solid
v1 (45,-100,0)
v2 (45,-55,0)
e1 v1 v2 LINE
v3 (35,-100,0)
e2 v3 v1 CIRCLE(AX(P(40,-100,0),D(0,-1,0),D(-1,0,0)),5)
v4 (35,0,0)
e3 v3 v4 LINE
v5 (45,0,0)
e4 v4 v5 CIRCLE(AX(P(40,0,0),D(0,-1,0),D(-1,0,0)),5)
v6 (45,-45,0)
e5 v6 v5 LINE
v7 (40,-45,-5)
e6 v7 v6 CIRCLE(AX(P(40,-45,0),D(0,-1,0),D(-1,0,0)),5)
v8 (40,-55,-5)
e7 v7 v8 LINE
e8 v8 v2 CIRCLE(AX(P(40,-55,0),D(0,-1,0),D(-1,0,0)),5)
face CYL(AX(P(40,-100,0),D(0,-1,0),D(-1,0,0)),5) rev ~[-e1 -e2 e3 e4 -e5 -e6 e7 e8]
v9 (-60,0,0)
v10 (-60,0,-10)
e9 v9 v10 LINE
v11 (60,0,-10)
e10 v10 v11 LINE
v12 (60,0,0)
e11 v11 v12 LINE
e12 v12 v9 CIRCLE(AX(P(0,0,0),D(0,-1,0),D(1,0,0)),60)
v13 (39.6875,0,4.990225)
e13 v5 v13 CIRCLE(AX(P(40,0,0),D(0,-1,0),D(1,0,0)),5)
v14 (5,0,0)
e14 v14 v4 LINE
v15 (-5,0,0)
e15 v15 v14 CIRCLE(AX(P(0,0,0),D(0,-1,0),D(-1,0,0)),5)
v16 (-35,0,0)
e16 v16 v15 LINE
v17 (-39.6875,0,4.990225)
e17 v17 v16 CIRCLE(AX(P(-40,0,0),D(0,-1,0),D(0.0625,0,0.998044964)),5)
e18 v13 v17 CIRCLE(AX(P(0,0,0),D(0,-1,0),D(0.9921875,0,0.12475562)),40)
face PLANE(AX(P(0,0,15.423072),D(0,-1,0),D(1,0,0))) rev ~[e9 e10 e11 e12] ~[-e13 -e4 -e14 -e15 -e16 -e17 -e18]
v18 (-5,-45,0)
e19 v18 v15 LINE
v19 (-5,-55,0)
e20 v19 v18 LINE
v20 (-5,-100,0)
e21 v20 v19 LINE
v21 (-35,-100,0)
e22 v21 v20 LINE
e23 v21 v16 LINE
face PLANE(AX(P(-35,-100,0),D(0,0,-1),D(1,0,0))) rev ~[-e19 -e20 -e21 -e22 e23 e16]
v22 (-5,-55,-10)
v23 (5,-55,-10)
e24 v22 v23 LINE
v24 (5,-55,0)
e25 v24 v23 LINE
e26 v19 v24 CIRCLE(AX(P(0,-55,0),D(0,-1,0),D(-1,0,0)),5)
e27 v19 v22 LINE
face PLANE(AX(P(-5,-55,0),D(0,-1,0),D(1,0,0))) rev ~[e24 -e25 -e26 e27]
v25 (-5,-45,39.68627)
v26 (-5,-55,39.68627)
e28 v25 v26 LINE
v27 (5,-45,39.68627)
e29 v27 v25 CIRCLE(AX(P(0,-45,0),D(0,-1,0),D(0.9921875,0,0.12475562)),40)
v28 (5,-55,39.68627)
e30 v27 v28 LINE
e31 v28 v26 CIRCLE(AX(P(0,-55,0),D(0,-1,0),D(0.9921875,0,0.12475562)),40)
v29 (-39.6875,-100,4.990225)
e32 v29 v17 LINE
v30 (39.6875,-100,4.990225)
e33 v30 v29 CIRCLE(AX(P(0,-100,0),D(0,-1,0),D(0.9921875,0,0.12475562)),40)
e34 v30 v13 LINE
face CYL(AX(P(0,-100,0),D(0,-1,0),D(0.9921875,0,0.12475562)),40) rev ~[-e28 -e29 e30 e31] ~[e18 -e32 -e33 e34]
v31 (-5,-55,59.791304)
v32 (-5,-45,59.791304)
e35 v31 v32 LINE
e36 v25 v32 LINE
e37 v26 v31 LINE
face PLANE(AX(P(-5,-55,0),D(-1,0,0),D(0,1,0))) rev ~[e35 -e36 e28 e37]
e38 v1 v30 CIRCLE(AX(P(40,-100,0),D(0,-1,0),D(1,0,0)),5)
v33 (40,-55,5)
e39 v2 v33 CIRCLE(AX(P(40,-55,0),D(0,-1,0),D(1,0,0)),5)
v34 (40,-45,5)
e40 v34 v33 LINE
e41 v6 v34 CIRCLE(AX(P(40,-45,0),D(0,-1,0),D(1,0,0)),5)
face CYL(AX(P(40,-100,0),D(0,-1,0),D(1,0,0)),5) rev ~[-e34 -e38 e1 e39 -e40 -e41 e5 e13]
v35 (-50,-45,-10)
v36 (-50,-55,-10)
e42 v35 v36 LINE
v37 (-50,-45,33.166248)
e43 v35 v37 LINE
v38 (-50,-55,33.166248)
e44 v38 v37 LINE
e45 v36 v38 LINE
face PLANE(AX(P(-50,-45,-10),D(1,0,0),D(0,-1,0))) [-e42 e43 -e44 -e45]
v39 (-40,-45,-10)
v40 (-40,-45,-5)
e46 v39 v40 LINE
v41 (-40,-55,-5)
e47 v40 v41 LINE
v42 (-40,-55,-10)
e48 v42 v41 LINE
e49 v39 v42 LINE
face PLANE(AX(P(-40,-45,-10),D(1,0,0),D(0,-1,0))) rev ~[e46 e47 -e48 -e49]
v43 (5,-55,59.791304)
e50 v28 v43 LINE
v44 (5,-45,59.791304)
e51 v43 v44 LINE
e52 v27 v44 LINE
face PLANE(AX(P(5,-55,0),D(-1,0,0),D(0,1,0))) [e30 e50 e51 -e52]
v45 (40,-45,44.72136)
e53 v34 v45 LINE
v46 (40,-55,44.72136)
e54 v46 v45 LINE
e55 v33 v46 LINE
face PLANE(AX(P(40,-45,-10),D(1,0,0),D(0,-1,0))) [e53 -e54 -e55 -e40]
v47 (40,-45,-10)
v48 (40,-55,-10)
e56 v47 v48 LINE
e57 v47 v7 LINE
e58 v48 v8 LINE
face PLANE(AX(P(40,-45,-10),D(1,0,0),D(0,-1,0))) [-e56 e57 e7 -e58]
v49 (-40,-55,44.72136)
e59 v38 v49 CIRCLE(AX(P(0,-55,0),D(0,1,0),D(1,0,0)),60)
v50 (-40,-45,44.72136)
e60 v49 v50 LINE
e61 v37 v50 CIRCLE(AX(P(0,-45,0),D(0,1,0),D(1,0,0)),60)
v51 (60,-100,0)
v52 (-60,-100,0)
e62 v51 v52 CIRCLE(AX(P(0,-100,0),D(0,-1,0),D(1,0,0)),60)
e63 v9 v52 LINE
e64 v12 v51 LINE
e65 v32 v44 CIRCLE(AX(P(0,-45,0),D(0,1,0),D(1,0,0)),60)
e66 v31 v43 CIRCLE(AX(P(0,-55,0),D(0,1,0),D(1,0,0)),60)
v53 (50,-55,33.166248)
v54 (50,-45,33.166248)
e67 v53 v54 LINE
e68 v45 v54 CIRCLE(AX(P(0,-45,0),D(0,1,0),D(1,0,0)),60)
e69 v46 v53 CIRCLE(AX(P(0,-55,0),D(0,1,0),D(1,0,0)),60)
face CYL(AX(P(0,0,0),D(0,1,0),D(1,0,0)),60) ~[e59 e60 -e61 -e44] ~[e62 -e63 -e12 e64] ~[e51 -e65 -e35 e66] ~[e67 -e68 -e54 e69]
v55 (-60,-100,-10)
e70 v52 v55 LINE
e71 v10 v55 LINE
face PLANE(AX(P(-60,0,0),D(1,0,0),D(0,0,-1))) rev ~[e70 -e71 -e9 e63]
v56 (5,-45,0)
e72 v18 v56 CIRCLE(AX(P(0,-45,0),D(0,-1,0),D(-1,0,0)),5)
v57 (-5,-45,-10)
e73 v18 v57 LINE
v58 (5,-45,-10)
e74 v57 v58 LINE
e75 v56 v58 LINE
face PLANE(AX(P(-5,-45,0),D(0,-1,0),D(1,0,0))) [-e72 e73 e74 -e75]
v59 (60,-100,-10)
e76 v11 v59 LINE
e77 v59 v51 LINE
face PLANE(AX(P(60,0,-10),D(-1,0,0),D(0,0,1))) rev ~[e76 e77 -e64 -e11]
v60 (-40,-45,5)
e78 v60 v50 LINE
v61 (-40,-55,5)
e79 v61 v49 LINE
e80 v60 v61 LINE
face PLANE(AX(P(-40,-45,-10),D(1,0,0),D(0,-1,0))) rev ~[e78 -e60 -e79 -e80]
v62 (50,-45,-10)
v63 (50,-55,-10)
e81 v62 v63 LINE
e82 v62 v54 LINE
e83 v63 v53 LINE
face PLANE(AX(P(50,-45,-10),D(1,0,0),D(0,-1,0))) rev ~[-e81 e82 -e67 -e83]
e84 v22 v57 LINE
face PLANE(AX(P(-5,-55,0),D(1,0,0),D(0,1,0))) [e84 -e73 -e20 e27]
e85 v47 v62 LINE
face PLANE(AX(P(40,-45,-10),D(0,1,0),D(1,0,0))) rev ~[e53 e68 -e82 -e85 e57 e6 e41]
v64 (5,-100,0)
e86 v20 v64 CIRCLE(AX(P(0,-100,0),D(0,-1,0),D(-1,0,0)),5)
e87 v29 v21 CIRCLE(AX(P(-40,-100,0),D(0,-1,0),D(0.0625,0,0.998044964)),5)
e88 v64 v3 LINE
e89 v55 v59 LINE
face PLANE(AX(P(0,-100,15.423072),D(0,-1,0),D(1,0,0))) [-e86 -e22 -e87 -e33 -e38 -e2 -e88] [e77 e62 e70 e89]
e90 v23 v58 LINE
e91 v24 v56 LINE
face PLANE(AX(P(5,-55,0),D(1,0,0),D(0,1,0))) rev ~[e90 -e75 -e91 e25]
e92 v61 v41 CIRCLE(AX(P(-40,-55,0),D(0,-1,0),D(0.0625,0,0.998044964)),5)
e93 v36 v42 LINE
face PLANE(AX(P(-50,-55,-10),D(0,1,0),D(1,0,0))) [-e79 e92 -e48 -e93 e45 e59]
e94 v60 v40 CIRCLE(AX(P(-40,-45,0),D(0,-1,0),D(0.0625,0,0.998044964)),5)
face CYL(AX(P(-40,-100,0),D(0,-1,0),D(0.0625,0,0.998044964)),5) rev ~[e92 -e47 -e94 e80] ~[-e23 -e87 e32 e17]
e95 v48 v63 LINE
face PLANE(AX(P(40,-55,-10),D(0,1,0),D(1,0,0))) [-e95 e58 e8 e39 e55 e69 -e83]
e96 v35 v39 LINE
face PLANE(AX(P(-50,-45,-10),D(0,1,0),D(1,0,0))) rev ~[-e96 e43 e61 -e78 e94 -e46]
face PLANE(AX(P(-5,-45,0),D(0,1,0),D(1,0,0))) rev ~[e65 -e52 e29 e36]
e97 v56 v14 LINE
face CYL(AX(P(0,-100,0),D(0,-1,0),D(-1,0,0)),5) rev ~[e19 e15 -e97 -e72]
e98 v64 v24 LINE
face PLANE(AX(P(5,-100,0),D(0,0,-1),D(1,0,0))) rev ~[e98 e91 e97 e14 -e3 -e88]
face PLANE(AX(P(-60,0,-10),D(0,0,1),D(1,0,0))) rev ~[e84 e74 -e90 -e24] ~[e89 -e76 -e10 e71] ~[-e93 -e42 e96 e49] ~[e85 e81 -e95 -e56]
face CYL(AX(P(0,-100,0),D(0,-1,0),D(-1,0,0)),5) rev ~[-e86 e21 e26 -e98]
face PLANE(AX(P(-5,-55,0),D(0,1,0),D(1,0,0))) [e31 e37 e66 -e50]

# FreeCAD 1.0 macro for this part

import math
import FreeCAD as App
import Part
import Sketcher
from FreeCAD import Vector
Q = App.Units.Quantity


def add_polygon(sketch, points):
    """Adds a closed chain of lines whose ends are joined by coincident constraints."""
    first, n = sketch.GeometryCount, len(points)
    for a, b in zip(points, points[1:] + points[:1]):
        sketch.addGeometry(Part.LineSegment(App.Vector(*a, 0), App.Vector(*b, 0)), False)
    for i in range(n):
        sketch.addConstraint(Sketcher.Constraint("Coincident", first + i, 2, first + (i + 1) % n, 1))

doc = App.newDocument("Part")
params = doc.addObject("Spreadsheet::Sheet", "Params")
for row, (alias, value) in enumerate([
    ("sketch1_radius", "60 mm"),
    ("sketch1_height", "10 mm"),
    ("pad1_length", "100 mm"),
    ("sketch2_radius", "5 mm"),
    ("sketch2_radius2", "40 mm"),
    ("sketch2_width", "30 mm"),
    ("sketch3_width", "10 mm"),
    ("sketch4_width", "10 mm"),
    ("sketch5_width", "10 mm"),
    ("sketch6_width", "10 mm"),
], start=1):
    params.set(f"A{row}", alias)
    params.set(f"B{row}", "=" + value)
    params.setAlias(f"B{row}", alias)

body = doc.addObject("PartDesign::Body", "Body")

# Sketch on XZ plane
sketch1 = body.newObject("Sketcher::SketchObject", "Sketch")
sketch1.AttachmentSupport = (doc.getObject("XZ_Plane"), [""])
sketch1.MapMode = "FlatFace"
sketch1.addGeometry([
    Part.LineSegment(Vector(60, -10, 0), Vector(60, 0, 0)),
    Part.ArcOfCircle(Part.Circle(Vector(0, 0, 0), Vector(0, 0, 1), 60), math.radians(0), math.radians(180)),
    Part.LineSegment(Vector(-60, 0, 0), Vector(-60, -10, 0)),
    Part.LineSegment(Vector(-60, -10, 0), Vector(60, -10, 0)),
], False)
sketch1.addConstraint([
    Sketcher.Constraint("Tangent", 0, 2, 1, 1),
    Sketcher.Constraint("Tangent", 1, 2, 2, 1),
    Sketcher.Constraint("Coincident", 2, 2, 3, 1),
    Sketcher.Constraint("Coincident", 3, 2, 0, 1),
    Sketcher.Constraint("Vertical", 0),
    Sketcher.Constraint("Vertical", 2),
    Sketcher.Constraint("Horizontal", 3),
    Sketcher.Constraint("Coincident", 1, 3, -1, 1),
    Sketcher.Constraint("Radius", 1, Q("60 mm")),
    Sketcher.Constraint("DistanceY", 0, 1, 0, 2, Q("10 mm")),
])
sketch1.setExpression("Constraints[8]", "Params.sketch1_radius")
sketch1.setExpression("Constraints[9]", "Params.sketch1_height")
pad1 = body.newObject("PartDesign::Pad", "Pad")
pad1.Profile = sketch1
pad1.setExpression("Length", "Params.pad1_length")

# Sketch on XZ plane
sketch2 = body.newObject("Sketcher::SketchObject", "Sketch001")
sketch2.AttachmentSupport = (doc.getObject("XZ_Plane"), [""])
sketch2.MapMode = "FlatFace"
sketch2.AttachmentOffset = App.Placement(Vector(0, 0, 100), App.Rotation())
sketch2.addGeometry([
    Part.ArcOfCircle(Part.Circle(Vector(40, 0, 0), Vector(0, 0, 1), 5), math.radians(180), math.radians(360)),  # 0
    Part.ArcOfCircle(Part.Circle(Vector(40, 0, 0), Vector(0, 0, 1), 5), math.radians(0), math.radians(94)),  # 1
    Part.ArcOfCircle(Part.Circle(Vector(0, 0, 0), Vector(0, 0, 1), 40), math.radians(7), math.radians(173)),  # 2
    Part.ArcOfCircle(Part.Circle(Vector(-40, 0, 0), Vector(0, 0, 1), 5), math.radians(86), math.radians(360)),  # 3
    Part.LineSegment(Vector(-35, 0, 0), Vector(-5, 0, 0)),  # 4
    Part.ArcOfCircle(Part.Circle(Vector(0, 0, 0), Vector(0, 0, 1), 5), math.radians(180), math.radians(360)),  # 5
    Part.LineSegment(Vector(5, 0, 0), Vector(35, 0, 0)),  # 6
], False)
sketch2.addConstraint([
    Sketcher.Constraint("Tangent", 0, 2, 1, 1),
    Sketcher.Constraint("Coincident", 1, 2, 2, 1),
    Sketcher.Constraint("Coincident", 2, 2, 3, 1),
    Sketcher.Constraint("Coincident", 3, 2, 4, 1),
    Sketcher.Constraint("Coincident", 4, 2, 5, 1),
    Sketcher.Constraint("Coincident", 5, 2, 6, 1),
    Sketcher.Constraint("Coincident", 6, 2, 0, 1),
    Sketcher.Constraint("Horizontal", 4),
    Sketcher.Constraint("Horizontal", 6),
    Sketcher.Constraint("Coincident", 2, 3, -1, 1),
    Sketcher.Constraint("Coincident", 5, 3, -1, 1),
    Sketcher.Constraint("Equal", 0, 1),
    Sketcher.Constraint("Equal", 1, 3),
    Sketcher.Constraint("Equal", 3, 5),
    Sketcher.Constraint("Symmetric", 0, 3, 3, 3, -1, 1),
    Sketcher.Constraint("PointOnObject", 0, 3, -1),
    Sketcher.Constraint("PointOnObject", 0, 2, -1),
    Sketcher.Constraint("PointOnObject", 3, 2, -1),
    Sketcher.Constraint("PointOnObject", 5, 2, -1),
    Sketcher.Constraint("Radius", 0, Q("5 mm")),
    Sketcher.Constraint("Radius", 2, Q("40 mm")),
    Sketcher.Constraint("DistanceX", 4, 1, 4, 2, Q("30 mm")),
])
sketch2.setExpression("Constraints[19]", "Params.sketch2_radius")
sketch2.setExpression("Constraints[20]", "Params.sketch2_radius2")
sketch2.setExpression("Constraints[21]", "Params.sketch2_width")
pocket1 = body.newObject("PartDesign::Pocket", "Pocket")
pocket1.Profile = sketch2
pocket1.Type = "ThroughAll"

# Sketch on XY plane
sketch3 = body.newObject("Sketcher::SketchObject", "Sketch002")
sketch3.AttachmentSupport = (doc.getObject("XY_Plane"), [""])
sketch3.MapMode = "FlatFace"
add_polygon(sketch3, [(-5, -45), (-5, -55), (5, -55), (5, -45)])  # lines 0-3
sketch3.addConstraint([
    Sketcher.Constraint("Vertical", 0),
    Sketcher.Constraint("Horizontal", 1),
    Sketcher.Constraint("Vertical", 2),
    Sketcher.Constraint("Horizontal", 3),
    Sketcher.Constraint("Equal", 3, 0),
    Sketcher.Constraint("DistanceX", 1, 1, 1, 2, Q("10 mm")),
    Sketcher.Constraint("DistanceX", 0, 2, -1, 1, Q("5 mm")),
    Sketcher.Constraint("DistanceY", 0, 2, -1, 1, Q("55 mm")),
])
sketch3.setExpression("Constraints[9]", "Params.sketch3_width")
pocket2 = body.newObject("PartDesign::Pocket", "Pocket001")
pocket2.Profile = sketch3
pocket2.Type = "ThroughAll"

# Sketch on XY plane
sketch4 = body.newObject("Sketcher::SketchObject", "Sketch003")
sketch4.AttachmentSupport = (doc.getObject("XY_Plane"), [""])
sketch4.MapMode = "FlatFace"
add_polygon(sketch4, [(-5, -45), (-5, -55), (5, -55), (5, -45)])  # lines 0-3
sketch4.addConstraint([
    Sketcher.Constraint("Vertical", 0),
    Sketcher.Constraint("Horizontal", 1),
    Sketcher.Constraint("Vertical", 2),
    Sketcher.Constraint("Horizontal", 3),
    Sketcher.Constraint("Equal", 3, 0),
    Sketcher.Constraint("DistanceX", 1, 1, 1, 2, Q("10 mm")),
    Sketcher.Constraint("DistanceX", 0, 2, -1, 1, Q("5 mm")),
    Sketcher.Constraint("DistanceY", 0, 2, -1, 1, Q("55 mm")),
])
sketch4.setExpression("Constraints[9]", "Params.sketch4_width")
pocket3 = body.newObject("PartDesign::Pocket", "Pocket002")
pocket3.Profile = sketch4
pocket3.Type = "ThroughAll"
pocket3.Reversed = True

# Sketch on XY plane
sketch5 = body.newObject("Sketcher::SketchObject", "Sketch004")
sketch5.AttachmentSupport = (doc.getObject("XY_Plane"), [""])
sketch5.MapMode = "FlatFace"
sketch5.AttachmentOffset = App.Placement(Vector(0, 0, -10), App.Rotation())
add_polygon(sketch5, [(40, -55), (40, -45), (50, -45), (50, -55)])  # lines 0-3
sketch5.addConstraint([
    Sketcher.Constraint("Vertical", 0),
    Sketcher.Constraint("Horizontal", 1),
    Sketcher.Constraint("Vertical", 2),
    Sketcher.Constraint("Horizontal", 3),
    Sketcher.Constraint("Equal", 3, 0),
    Sketcher.Constraint("DistanceX", 1, 1, 1, 2, Q("10 mm")),
    Sketcher.Constraint("DistanceX", -1, 1, 0, 2, Q("40 mm")),
    Sketcher.Constraint("DistanceY", 0, 2, -1, 1, Q("45 mm")),
])
sketch5.setExpression("Constraints[9]", "Params.sketch5_width")
pocket4 = body.newObject("PartDesign::Pocket", "Pocket003")
pocket4.Profile = sketch5
pocket4.Type = "ThroughAll"
pocket4.Reversed = True

# Sketch on XY plane
sketch6 = body.newObject("Sketcher::SketchObject", "Sketch005")
sketch6.AttachmentSupport = (doc.getObject("XY_Plane"), [""])
sketch6.MapMode = "FlatFace"
sketch6.AttachmentOffset = App.Placement(Vector(0, 0, -10), App.Rotation())
add_polygon(sketch6, [(-50, -55), (-50, -45), (-40, -45), (-40, -55)])  # lines 0-3
sketch6.addConstraint([
    Sketcher.Constraint("Vertical", 0),
    Sketcher.Constraint("Horizontal", 1),
    Sketcher.Constraint("Vertical", 2),
    Sketcher.Constraint("Horizontal", 3),
    Sketcher.Constraint("Equal", 3, 0),
    Sketcher.Constraint("DistanceX", 1, 1, 1, 2, Q("10 mm")),
    Sketcher.Constraint("DistanceX", 0, 2, -1, 1, Q("50 mm")),
    Sketcher.Constraint("DistanceY", 0, 2, -1, 1, Q("45 mm")),
])
sketch6.setExpression("Constraints[9]", "Params.sketch6_width")
pocket5 = body.newObject("PartDesign::Pocket", "Pocket004")
pocket5.Profile = sketch6
pocket5.Type = "ThroughAll"
pocket5.Reversed = True

doc.recompute()
